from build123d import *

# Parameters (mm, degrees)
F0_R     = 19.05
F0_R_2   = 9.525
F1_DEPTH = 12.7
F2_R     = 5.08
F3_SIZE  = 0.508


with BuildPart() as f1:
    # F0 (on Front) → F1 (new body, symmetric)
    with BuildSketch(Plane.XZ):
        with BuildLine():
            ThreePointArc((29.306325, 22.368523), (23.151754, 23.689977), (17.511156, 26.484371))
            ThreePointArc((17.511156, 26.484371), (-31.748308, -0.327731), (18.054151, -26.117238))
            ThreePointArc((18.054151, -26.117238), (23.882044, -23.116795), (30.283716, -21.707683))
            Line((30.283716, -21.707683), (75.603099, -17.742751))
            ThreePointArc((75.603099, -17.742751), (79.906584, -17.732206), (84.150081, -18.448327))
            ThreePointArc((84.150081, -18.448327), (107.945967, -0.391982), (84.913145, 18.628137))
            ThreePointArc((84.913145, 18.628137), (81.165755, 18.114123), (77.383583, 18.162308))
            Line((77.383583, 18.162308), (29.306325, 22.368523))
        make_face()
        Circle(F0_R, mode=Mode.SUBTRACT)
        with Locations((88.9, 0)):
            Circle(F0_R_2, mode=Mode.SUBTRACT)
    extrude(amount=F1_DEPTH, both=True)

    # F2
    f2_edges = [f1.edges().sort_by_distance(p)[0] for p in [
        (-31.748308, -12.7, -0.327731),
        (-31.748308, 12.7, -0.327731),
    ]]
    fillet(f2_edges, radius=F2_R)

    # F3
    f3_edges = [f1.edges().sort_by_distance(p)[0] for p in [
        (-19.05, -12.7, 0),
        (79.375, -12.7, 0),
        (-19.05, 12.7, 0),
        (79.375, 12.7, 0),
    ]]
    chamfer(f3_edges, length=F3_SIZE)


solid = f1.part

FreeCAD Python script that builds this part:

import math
import FreeCAD as App
import Part
import Sketcher
from FreeCAD import Vector
Q = App.Units.Quantity


def edges_at(feature, points):
    """Names of the edges that pass closest to the given points."""
    edges = feature.Shape.Edges
    near = lambda p: min(range(len(edges)), key=lambda i: edges[i].distToShape(Part.Vertex(*p))[0])
    return sorted({f"Edge{near(p) + 1}" for p in points})

doc = App.newDocument("Part")
body = doc.addObject("PartDesign::Body", "Body")

sketch1 = body.newObject("Sketcher::SketchObject", "Sketch")
sketch1.AttachmentSupport = (doc.getObject("XZ_Plane"), [""])
sketch1.MapMode = "FlatFace"
sketch1.addGeometry([
    Part.ArcOfCircle(Part.Circle(Vector(32, 48, 0), Vector(0, 0, 1), 25), math.radians(-123), math.radians(-95)),
    Part.ArcOfCircle(Part.Circle(Vector(0, 0, 0), Vector(0, 0, 1), 32), math.radians(57), math.radians(305)),
    Part.ArcOfCircle(Part.Circle(Vector(32, -47, 0), Vector(0, 0, 1), 25), math.radians(95), math.radians(125)),
    Part.LineSegment(Vector(30, -22, 0), Vector(76, -18, 0)),
    Part.ArcOfCircle(Part.Circle(Vector(78, -43, 0), Vector(0, 0, 1), 25), math.radians(75.56), math.radians(95)),
    Part.ArcOfCircle(Part.Circle(Vector(89, 0, 0), Vector(0, 0, 1), 19), math.radians(-104), math.radians(102)),
    Part.ArcOfCircle(Part.Circle(Vector(80, 43, 0), Vector(0, 0, 1), 25), math.radians(-95), math.radians(-77.92)),
    Part.LineSegment(Vector(77, 18, 0), Vector(29, 22, 0)),
    Part.Circle(Vector(0, 0, 0), Vector(0, 0, 1), 19),
    Part.Circle(Vector(89, 0, 0), Vector(0, 0, 1), 10),
], False)
sketch1.addConstraint([
    Sketcher.Constraint("Tangent", 0, 1, 1, 1),
    Sketcher.Constraint("Tangent", 1, 2, 2, 2),
    Sketcher.Constraint("Tangent", 2, 1, 3, 1),
    Sketcher.Constraint("Tangent", 3, 2, 4, 2),
    Sketcher.Constraint("Tangent", 4, 1, 5, 1),
    Sketcher.Constraint("Tangent", 5, 2, 6, 2),
    Sketcher.Constraint("Tangent", 6, 1, 7, 1),
    Sketcher.Constraint("Tangent", 7, 2, 0, 2),
    Sketcher.Constraint("Coincident", 1, 3, -1, 1),
    Sketcher.Constraint("Coincident", 8, 3, -1, 1),
    Sketcher.Constraint("Coincident", 9, 3, 5, 3),
    Sketcher.Constraint("Equal", 5, 8),
    Sketcher.Constraint("PointOnObject", 5, 3, -1),
    Sketcher.Constraint("Radius", 0, Q("1.0000001 in")),
    Sketcher.Constraint("Diameter", 8, Q("1.5 in")),
    Sketcher.Constraint("Diameter", 9, Q("0.75 in")),
    Sketcher.Constraint("Radius", 1, Q("1.25 in")),
    Sketcher.Constraint("Angle", 3, Q("5 deg")),
    Sketcher.Constraint("Angle", 7, Q("175 deg")),
    Sketcher.Constraint("DistanceX", -1, 1, 5, 3, Q("3.5 in")),
    Sketcher.Constraint("Radius", 4, Q("25.399991 mm")),
    Sketcher.Constraint("DistanceX", -1, 1, 3, 2, Q("2.9765 in")),
    Sketcher.Constraint("Radius", 2, Q("25.400007 mm")),
    Sketcher.Constraint("Radius", 6, Q("25.399977 mm")),
    Sketcher.Constraint("DistanceY", 6, 3, 0, 3, Q("0.1656 in")),
])
pad1 = body.newObject("PartDesign::Pad", "Pad")
pad1.Profile = sketch1
pad1.Length = Q("1 in")
pad1.Midplane = True
doc.recompute()

fillet = body.newObject("PartDesign::Fillet", "Fillet")
fillet.Base = (pad1, edges_at(pad1, [(-31.748, -12.7, -0.328), (-31.748, 12.7, -0.328)]))
fillet.Radius = Q("0.2 in")
doc.recompute()

chamfer = body.newObject("PartDesign::Chamfer", "Chamfer")
chamfer.Base = (fillet, edges_at(fillet, [
    (-19.05, -12.7, 0),
    (79.375, -12.7, 0),
    (-19.05, 12.7, 0),
    (79.375, 12.7, 0),
]))
chamfer.Size = Q("0.02 in")

doc.recompute()
